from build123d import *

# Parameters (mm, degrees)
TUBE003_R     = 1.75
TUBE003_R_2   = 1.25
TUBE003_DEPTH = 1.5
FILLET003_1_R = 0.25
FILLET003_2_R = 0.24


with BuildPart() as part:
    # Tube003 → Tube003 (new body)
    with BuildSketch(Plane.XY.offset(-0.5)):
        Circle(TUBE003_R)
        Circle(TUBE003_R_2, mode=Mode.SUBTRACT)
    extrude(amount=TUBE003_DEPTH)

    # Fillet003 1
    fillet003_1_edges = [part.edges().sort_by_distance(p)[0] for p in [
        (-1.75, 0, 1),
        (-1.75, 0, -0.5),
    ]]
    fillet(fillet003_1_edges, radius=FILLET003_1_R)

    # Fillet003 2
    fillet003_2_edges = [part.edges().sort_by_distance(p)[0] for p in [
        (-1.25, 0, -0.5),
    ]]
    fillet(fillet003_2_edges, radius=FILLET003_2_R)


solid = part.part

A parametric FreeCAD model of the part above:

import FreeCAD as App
import Part
import Sketcher

V = App.Vector
Q = App.Units.Quantity


def edges_at(feature, points):
    """Names of the edges that pass closest to the given points."""
    edges = feature.Shape.Edges
    near = lambda p: min(range(len(edges)), key=lambda i: edges[i].distToShape(Part.Vertex(*p))[0])
    return sorted({f"Edge{near(p) + 1}" for p in points})

doc = App.newDocument("Part")
body = doc.addObject("PartDesign::Body", "Body")

# Sketch on XY plane
sketch1 = body.newObject("Sketcher::SketchObject", "Sketch")
sketch1.AttachmentSupport = (doc.getObject("XY_Plane"), [""])
sketch1.MapMode = "FlatFace"
sketch1.AttachmentOffset = App.Placement(V(0, 0, -0.5), App.Rotation())
sketch1.addGeometry([
    Part.Circle(V(0, 0, 0), V(0, 0, 1), 1.8),
    Part.Circle(V(0, 0, 0), V(0, 0, 1), 1.2),
], False)
sketch1.addConstraint([
    Sketcher.Constraint("Coincident", 0, 3, -1, 1),
    Sketcher.Constraint("Coincident", 1, 3, -1, 1),
    Sketcher.Constraint("Diameter", 0, Q("3.5 mm")),
    Sketcher.Constraint("Diameter", 1, Q("2.5 mm")),
])
pad1 = body.newObject("PartDesign::Pad", "Pad")
pad1.Profile = sketch1
pad1.Length = 1.5
doc.recompute()

fillet = body.newObject("PartDesign::Fillet", "Fillet")
fillet.Base = (pad1, edges_at(pad1, [(-1.75, 0, 1), (-1.75, 0, -0.5)]))
fillet.Radius = 0.25
doc.recompute()

fillet2 = body.newObject("PartDesign::Fillet", "Fillet001")
fillet2.Base = (fillet, edges_at(fillet, [(-1.25, 0, -0.5)]))
fillet2.Radius = 0.24

doc.recompute()
